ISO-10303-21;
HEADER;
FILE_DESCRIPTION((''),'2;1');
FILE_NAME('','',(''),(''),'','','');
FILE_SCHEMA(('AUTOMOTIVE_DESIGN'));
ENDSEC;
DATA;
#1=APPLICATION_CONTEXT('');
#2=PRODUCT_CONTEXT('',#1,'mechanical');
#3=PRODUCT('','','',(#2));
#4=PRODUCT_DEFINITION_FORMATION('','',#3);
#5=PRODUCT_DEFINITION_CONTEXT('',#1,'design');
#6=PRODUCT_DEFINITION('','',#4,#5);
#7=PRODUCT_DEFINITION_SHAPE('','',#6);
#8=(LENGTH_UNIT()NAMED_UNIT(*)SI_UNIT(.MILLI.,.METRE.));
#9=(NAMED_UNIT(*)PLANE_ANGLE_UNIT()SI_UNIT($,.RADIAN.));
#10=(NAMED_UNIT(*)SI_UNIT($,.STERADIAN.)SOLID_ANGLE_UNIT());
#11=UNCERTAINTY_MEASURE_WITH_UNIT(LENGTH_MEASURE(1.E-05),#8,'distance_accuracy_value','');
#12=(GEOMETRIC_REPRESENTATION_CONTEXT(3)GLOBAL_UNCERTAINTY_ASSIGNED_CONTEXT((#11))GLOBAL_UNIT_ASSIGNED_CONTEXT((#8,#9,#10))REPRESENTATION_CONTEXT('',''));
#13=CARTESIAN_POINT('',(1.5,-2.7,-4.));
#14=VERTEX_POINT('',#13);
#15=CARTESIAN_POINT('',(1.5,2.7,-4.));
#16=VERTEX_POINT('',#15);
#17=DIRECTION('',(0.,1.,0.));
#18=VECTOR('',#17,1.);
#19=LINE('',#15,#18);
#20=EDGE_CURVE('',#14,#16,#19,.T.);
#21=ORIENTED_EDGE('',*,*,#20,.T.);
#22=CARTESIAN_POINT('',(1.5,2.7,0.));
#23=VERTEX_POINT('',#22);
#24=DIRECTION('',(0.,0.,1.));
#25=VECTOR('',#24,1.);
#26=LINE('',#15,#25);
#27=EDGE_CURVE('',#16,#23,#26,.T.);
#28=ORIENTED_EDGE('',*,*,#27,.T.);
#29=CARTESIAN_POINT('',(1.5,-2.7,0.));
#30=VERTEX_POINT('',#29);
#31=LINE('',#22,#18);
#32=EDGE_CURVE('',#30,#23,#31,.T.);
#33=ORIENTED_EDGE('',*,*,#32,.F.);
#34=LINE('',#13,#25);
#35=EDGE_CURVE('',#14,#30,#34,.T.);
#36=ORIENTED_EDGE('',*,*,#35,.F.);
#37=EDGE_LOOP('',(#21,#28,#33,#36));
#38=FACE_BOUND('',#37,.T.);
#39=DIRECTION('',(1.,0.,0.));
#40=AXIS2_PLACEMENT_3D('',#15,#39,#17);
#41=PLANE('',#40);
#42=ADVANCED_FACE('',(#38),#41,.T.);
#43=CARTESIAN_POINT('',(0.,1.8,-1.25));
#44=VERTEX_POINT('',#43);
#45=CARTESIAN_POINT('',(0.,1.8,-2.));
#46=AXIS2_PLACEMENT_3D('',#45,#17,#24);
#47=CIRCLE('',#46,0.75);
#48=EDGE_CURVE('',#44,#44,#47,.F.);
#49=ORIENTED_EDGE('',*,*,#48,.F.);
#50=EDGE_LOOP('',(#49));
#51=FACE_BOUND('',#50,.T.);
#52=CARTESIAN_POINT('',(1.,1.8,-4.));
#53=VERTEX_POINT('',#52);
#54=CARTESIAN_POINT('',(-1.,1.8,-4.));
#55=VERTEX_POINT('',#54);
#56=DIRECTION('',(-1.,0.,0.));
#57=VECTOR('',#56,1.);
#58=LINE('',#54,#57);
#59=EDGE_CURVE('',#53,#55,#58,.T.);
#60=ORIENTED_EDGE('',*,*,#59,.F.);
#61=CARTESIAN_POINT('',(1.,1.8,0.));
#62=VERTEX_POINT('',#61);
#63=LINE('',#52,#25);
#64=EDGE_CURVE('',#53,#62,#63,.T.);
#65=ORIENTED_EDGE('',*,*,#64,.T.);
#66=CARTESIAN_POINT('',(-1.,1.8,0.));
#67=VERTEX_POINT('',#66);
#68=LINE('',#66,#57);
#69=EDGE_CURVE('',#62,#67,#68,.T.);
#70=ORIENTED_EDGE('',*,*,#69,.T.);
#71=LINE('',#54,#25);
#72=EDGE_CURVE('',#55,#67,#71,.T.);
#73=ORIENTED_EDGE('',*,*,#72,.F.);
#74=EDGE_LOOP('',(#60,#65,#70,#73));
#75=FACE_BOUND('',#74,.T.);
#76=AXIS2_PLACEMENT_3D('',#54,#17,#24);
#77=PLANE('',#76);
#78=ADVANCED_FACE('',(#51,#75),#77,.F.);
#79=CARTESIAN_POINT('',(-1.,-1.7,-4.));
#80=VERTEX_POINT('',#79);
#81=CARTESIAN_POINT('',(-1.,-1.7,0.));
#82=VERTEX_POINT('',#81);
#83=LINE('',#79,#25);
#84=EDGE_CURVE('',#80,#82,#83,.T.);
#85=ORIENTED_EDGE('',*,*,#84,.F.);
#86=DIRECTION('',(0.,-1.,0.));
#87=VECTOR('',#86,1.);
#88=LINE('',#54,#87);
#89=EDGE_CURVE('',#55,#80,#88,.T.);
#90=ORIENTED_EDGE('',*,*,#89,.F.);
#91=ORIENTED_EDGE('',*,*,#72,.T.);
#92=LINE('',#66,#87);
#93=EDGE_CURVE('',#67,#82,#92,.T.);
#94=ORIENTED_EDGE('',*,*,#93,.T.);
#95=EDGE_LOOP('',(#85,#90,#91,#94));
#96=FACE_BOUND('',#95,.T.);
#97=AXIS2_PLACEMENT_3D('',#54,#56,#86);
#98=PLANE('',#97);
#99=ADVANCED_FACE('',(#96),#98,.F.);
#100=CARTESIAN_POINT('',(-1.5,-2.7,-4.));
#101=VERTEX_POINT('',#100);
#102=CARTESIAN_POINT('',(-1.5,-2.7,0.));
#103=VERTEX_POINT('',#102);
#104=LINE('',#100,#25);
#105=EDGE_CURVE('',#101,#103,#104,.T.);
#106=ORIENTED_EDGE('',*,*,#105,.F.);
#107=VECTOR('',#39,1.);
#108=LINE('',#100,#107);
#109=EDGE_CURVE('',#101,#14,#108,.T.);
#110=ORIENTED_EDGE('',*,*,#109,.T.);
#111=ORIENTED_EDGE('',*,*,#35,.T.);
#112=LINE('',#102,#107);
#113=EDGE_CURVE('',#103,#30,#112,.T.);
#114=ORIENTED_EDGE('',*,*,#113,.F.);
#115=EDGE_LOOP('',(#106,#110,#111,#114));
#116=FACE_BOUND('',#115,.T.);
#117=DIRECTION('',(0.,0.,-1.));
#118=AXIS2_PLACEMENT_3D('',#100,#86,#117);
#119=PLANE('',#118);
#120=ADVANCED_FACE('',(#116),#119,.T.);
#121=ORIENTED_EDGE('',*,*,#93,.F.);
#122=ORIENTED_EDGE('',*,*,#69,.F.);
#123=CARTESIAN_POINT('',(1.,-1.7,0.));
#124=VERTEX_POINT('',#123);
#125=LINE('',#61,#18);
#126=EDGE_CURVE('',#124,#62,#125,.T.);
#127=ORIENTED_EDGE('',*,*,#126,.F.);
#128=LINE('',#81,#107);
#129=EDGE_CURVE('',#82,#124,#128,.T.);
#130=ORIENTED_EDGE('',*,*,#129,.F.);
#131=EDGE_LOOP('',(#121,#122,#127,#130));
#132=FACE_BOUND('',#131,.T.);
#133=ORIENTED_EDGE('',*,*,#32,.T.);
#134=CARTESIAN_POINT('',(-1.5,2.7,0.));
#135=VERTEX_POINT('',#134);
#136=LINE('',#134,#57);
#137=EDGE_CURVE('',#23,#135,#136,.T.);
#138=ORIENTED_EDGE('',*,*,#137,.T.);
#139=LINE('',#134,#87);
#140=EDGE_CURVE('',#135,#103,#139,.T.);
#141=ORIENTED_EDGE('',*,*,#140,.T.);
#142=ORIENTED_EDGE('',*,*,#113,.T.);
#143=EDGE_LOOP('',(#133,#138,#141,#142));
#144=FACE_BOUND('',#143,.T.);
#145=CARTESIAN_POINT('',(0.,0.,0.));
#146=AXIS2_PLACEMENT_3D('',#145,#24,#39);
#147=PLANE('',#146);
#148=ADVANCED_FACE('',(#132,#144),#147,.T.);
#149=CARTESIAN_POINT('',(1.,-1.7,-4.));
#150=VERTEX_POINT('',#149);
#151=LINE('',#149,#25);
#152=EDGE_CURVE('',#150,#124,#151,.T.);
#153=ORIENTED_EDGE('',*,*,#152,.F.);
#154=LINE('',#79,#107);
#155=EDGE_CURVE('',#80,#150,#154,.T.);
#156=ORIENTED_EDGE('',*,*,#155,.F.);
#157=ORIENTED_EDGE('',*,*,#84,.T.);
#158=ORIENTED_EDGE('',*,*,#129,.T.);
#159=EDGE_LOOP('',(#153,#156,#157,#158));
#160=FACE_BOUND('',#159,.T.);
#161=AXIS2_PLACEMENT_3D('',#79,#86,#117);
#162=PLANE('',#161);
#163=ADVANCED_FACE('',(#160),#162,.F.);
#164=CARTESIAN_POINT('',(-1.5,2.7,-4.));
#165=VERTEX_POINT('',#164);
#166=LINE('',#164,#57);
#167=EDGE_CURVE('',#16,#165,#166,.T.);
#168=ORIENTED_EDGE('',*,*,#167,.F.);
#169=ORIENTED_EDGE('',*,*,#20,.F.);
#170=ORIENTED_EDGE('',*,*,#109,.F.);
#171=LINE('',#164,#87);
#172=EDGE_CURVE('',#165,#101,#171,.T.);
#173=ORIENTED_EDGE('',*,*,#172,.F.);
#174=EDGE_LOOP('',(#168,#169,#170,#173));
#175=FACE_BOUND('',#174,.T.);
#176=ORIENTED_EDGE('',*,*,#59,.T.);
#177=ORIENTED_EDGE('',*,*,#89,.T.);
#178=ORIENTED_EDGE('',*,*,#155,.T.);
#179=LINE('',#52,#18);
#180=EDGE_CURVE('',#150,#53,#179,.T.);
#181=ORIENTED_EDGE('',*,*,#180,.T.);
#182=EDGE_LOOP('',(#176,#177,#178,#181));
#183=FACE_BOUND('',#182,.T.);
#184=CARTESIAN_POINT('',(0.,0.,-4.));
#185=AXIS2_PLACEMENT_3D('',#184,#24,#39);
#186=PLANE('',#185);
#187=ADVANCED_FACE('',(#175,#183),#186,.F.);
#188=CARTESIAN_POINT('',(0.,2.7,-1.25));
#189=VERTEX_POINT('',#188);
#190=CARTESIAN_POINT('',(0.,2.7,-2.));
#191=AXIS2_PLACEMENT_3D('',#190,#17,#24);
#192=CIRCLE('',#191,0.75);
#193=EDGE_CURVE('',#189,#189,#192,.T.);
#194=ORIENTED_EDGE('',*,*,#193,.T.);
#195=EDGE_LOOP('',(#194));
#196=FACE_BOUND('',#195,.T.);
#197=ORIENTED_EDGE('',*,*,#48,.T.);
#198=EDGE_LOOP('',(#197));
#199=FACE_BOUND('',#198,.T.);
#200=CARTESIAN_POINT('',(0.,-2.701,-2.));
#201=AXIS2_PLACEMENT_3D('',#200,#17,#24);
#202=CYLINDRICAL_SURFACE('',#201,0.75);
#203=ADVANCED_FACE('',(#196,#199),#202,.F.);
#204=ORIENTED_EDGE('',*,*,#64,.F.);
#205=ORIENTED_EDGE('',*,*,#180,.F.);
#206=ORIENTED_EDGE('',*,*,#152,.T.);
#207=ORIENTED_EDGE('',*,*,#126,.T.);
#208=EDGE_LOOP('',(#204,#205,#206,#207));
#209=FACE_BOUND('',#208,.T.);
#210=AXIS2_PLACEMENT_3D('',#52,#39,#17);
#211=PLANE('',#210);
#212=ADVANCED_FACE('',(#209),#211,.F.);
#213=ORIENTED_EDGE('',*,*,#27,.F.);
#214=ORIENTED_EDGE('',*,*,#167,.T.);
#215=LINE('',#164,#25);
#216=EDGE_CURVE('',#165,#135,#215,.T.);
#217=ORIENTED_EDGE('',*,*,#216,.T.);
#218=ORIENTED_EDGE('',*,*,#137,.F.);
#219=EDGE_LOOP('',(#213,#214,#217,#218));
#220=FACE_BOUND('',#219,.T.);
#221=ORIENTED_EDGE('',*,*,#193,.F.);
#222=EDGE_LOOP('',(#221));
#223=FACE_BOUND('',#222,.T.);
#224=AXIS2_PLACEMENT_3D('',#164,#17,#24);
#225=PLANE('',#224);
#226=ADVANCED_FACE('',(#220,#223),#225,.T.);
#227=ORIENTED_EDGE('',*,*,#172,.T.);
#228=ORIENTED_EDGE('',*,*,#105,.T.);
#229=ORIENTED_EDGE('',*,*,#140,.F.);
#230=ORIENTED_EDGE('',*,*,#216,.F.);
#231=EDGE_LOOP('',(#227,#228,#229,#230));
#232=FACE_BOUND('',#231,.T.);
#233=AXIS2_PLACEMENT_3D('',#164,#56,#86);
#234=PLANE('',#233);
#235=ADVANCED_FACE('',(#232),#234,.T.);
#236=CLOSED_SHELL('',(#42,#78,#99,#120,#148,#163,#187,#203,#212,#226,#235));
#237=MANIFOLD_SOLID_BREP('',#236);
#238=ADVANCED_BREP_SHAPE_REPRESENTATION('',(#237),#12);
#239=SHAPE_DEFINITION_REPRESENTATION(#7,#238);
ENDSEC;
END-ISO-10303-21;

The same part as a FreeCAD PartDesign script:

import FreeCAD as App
import Part
import Sketcher

V = App.Vector


def add_polygon(sketch, points):
    """Adds a closed chain of lines whose ends are joined by coincident constraints."""
    first, n = sketch.GeometryCount, len(points)
    for a, b in zip(points, points[1:] + points[:1]):
        sketch.addGeometry(Part.LineSegment(App.Vector(*a, 0), App.Vector(*b, 0)), False)
    for i in range(n):
        sketch.addConstraint(Sketcher.Constraint("Coincident", first + i, 2, first + (i + 1) % n, 1))

doc = App.newDocument("Part")
params = doc.addObject("Spreadsheet::Sheet", "Params")
for row, (alias, value) in enumerate([
    ("sketch1_width", "3 mm"),
    ("sketch1_height", "5.4 mm"),
    ("pad1_length", "4 mm"),
    ("sketch2_width", "2 mm"),
    ("sketch2_height", "3.5 mm"),
    ("sketch3_diameter", "1.5 mm"),
], start=1):
    params.set(f"A{row}", alias)
    params.set(f"B{row}", "=" + value)
    params.setAlias(f"B{row}", alias)

body = doc.addObject("PartDesign::Body", "Body")

# Sketch on XY plane
sketch1 = doc.addObject("Sketcher::SketchObject", "Sketch")
body.addObject(sketch1)
sketch1.AttachmentSupport = (doc.XY_Plane, [""])
sketch1.MapMode = "FlatFace"
add_polygon(sketch1, [(-1.5, 2.7), (-1.5, -2.7), (1.5, -2.7), (1.5, 2.7)])  # lines 0-3
sketch1.addConstraint(Sketcher.Constraint("Vertical", 0))
sketch1.addConstraint(Sketcher.Constraint("Horizontal", 1))
sketch1.addConstraint(Sketcher.Constraint("Vertical", 2))
sketch1.addConstraint(Sketcher.Constraint("Horizontal", 3))
sketch1.addConstraint(Sketcher.Constraint("Symmetric", 0, 2, 2, 2, -1, 1))
sketch1.addConstraint(Sketcher.Constraint("DistanceX", 1, 1, 1, 2, 3.0))
sketch1.addConstraint(Sketcher.Constraint("DistanceY", 0, 2, 0, 1, 5.4))
sketch1.setExpression("Constraints[9]", "Params.sketch1_width")
sketch1.setExpression("Constraints[10]", "Params.sketch1_height")
pad1 = doc.addObject("PartDesign::Pad", "Pad")
body.addObject(pad1)
pad1.Profile = sketch1
pad1.setExpression("Length", "Params.pad1_length")
pad1.Reversed = True

# Sketch on XY plane
sketch2 = doc.addObject("Sketcher::SketchObject", "Sketch001")
body.addObject(sketch2)
sketch2.AttachmentSupport = (doc.XY_Plane, [""])
sketch2.MapMode = "FlatFace"
add_polygon(sketch2, [(-1, 1.8), (-1, -1.7), (1, -1.7), (1, 1.8)])  # lines 0-3
sketch2.addConstraint(Sketcher.Constraint("Vertical", 0))
sketch2.addConstraint(Sketcher.Constraint("Horizontal", 1))
sketch2.addConstraint(Sketcher.Constraint("Vertical", 2))
sketch2.addConstraint(Sketcher.Constraint("Horizontal", 3))
sketch2.addConstraint(Sketcher.Constraint("DistanceX", 1, 1, 1, 2, 2.0))
sketch2.addConstraint(Sketcher.Constraint("DistanceY", 0, 2, 0, 1, 3.5))
sketch2.addConstraint(Sketcher.Constraint("DistanceX", 0, 2, -1, 1, 1.0))
sketch2.addConstraint(Sketcher.Constraint("DistanceY", 0, 2, -1, 1, 1.7))
sketch2.setExpression("Constraints[8]", "Params.sketch2_width")
sketch2.setExpression("Constraints[9]", "Params.sketch2_height")
pocket1 = doc.addObject("PartDesign::Pocket", "Pocket")
body.addObject(pocket1)
pocket1.Profile = sketch2
pocket1.Type = "ThroughAll"

# Sketch on XZ plane
sketch3 = doc.addObject("Sketcher::SketchObject", "Sketch002")
body.addObject(sketch3)
sketch3.AttachmentSupport = (doc.XZ_Plane, [""])
sketch3.MapMode = "FlatFace"
sketch3.AttachmentOffset = App.Placement(V(0, 0, -2.7), App.Rotation())
sketch3.addGeometry(Part.Circle(V(0, -2, 0), V(0, 0, 1), 0.8), False)
sketch3.addConstraint(Sketcher.Constraint("PointOnObject", 0, 3, -2))
sketch3.addConstraint(Sketcher.Constraint("Diameter", 0, 1.5))
sketch3.addConstraint(Sketcher.Constraint("DistanceY", 0, 3, -1, 1, 2.0))
sketch3.setExpression("Constraints[1]", "Params.sketch3_diameter")
pocket2 = doc.addObject("PartDesign::Pocket", "Pocket001")
body.addObject(pocket2)
pocket2.Profile = sketch3
pocket2.Type = "UpToFirst"
pocket2.Reversed = True

doc.recompute()
